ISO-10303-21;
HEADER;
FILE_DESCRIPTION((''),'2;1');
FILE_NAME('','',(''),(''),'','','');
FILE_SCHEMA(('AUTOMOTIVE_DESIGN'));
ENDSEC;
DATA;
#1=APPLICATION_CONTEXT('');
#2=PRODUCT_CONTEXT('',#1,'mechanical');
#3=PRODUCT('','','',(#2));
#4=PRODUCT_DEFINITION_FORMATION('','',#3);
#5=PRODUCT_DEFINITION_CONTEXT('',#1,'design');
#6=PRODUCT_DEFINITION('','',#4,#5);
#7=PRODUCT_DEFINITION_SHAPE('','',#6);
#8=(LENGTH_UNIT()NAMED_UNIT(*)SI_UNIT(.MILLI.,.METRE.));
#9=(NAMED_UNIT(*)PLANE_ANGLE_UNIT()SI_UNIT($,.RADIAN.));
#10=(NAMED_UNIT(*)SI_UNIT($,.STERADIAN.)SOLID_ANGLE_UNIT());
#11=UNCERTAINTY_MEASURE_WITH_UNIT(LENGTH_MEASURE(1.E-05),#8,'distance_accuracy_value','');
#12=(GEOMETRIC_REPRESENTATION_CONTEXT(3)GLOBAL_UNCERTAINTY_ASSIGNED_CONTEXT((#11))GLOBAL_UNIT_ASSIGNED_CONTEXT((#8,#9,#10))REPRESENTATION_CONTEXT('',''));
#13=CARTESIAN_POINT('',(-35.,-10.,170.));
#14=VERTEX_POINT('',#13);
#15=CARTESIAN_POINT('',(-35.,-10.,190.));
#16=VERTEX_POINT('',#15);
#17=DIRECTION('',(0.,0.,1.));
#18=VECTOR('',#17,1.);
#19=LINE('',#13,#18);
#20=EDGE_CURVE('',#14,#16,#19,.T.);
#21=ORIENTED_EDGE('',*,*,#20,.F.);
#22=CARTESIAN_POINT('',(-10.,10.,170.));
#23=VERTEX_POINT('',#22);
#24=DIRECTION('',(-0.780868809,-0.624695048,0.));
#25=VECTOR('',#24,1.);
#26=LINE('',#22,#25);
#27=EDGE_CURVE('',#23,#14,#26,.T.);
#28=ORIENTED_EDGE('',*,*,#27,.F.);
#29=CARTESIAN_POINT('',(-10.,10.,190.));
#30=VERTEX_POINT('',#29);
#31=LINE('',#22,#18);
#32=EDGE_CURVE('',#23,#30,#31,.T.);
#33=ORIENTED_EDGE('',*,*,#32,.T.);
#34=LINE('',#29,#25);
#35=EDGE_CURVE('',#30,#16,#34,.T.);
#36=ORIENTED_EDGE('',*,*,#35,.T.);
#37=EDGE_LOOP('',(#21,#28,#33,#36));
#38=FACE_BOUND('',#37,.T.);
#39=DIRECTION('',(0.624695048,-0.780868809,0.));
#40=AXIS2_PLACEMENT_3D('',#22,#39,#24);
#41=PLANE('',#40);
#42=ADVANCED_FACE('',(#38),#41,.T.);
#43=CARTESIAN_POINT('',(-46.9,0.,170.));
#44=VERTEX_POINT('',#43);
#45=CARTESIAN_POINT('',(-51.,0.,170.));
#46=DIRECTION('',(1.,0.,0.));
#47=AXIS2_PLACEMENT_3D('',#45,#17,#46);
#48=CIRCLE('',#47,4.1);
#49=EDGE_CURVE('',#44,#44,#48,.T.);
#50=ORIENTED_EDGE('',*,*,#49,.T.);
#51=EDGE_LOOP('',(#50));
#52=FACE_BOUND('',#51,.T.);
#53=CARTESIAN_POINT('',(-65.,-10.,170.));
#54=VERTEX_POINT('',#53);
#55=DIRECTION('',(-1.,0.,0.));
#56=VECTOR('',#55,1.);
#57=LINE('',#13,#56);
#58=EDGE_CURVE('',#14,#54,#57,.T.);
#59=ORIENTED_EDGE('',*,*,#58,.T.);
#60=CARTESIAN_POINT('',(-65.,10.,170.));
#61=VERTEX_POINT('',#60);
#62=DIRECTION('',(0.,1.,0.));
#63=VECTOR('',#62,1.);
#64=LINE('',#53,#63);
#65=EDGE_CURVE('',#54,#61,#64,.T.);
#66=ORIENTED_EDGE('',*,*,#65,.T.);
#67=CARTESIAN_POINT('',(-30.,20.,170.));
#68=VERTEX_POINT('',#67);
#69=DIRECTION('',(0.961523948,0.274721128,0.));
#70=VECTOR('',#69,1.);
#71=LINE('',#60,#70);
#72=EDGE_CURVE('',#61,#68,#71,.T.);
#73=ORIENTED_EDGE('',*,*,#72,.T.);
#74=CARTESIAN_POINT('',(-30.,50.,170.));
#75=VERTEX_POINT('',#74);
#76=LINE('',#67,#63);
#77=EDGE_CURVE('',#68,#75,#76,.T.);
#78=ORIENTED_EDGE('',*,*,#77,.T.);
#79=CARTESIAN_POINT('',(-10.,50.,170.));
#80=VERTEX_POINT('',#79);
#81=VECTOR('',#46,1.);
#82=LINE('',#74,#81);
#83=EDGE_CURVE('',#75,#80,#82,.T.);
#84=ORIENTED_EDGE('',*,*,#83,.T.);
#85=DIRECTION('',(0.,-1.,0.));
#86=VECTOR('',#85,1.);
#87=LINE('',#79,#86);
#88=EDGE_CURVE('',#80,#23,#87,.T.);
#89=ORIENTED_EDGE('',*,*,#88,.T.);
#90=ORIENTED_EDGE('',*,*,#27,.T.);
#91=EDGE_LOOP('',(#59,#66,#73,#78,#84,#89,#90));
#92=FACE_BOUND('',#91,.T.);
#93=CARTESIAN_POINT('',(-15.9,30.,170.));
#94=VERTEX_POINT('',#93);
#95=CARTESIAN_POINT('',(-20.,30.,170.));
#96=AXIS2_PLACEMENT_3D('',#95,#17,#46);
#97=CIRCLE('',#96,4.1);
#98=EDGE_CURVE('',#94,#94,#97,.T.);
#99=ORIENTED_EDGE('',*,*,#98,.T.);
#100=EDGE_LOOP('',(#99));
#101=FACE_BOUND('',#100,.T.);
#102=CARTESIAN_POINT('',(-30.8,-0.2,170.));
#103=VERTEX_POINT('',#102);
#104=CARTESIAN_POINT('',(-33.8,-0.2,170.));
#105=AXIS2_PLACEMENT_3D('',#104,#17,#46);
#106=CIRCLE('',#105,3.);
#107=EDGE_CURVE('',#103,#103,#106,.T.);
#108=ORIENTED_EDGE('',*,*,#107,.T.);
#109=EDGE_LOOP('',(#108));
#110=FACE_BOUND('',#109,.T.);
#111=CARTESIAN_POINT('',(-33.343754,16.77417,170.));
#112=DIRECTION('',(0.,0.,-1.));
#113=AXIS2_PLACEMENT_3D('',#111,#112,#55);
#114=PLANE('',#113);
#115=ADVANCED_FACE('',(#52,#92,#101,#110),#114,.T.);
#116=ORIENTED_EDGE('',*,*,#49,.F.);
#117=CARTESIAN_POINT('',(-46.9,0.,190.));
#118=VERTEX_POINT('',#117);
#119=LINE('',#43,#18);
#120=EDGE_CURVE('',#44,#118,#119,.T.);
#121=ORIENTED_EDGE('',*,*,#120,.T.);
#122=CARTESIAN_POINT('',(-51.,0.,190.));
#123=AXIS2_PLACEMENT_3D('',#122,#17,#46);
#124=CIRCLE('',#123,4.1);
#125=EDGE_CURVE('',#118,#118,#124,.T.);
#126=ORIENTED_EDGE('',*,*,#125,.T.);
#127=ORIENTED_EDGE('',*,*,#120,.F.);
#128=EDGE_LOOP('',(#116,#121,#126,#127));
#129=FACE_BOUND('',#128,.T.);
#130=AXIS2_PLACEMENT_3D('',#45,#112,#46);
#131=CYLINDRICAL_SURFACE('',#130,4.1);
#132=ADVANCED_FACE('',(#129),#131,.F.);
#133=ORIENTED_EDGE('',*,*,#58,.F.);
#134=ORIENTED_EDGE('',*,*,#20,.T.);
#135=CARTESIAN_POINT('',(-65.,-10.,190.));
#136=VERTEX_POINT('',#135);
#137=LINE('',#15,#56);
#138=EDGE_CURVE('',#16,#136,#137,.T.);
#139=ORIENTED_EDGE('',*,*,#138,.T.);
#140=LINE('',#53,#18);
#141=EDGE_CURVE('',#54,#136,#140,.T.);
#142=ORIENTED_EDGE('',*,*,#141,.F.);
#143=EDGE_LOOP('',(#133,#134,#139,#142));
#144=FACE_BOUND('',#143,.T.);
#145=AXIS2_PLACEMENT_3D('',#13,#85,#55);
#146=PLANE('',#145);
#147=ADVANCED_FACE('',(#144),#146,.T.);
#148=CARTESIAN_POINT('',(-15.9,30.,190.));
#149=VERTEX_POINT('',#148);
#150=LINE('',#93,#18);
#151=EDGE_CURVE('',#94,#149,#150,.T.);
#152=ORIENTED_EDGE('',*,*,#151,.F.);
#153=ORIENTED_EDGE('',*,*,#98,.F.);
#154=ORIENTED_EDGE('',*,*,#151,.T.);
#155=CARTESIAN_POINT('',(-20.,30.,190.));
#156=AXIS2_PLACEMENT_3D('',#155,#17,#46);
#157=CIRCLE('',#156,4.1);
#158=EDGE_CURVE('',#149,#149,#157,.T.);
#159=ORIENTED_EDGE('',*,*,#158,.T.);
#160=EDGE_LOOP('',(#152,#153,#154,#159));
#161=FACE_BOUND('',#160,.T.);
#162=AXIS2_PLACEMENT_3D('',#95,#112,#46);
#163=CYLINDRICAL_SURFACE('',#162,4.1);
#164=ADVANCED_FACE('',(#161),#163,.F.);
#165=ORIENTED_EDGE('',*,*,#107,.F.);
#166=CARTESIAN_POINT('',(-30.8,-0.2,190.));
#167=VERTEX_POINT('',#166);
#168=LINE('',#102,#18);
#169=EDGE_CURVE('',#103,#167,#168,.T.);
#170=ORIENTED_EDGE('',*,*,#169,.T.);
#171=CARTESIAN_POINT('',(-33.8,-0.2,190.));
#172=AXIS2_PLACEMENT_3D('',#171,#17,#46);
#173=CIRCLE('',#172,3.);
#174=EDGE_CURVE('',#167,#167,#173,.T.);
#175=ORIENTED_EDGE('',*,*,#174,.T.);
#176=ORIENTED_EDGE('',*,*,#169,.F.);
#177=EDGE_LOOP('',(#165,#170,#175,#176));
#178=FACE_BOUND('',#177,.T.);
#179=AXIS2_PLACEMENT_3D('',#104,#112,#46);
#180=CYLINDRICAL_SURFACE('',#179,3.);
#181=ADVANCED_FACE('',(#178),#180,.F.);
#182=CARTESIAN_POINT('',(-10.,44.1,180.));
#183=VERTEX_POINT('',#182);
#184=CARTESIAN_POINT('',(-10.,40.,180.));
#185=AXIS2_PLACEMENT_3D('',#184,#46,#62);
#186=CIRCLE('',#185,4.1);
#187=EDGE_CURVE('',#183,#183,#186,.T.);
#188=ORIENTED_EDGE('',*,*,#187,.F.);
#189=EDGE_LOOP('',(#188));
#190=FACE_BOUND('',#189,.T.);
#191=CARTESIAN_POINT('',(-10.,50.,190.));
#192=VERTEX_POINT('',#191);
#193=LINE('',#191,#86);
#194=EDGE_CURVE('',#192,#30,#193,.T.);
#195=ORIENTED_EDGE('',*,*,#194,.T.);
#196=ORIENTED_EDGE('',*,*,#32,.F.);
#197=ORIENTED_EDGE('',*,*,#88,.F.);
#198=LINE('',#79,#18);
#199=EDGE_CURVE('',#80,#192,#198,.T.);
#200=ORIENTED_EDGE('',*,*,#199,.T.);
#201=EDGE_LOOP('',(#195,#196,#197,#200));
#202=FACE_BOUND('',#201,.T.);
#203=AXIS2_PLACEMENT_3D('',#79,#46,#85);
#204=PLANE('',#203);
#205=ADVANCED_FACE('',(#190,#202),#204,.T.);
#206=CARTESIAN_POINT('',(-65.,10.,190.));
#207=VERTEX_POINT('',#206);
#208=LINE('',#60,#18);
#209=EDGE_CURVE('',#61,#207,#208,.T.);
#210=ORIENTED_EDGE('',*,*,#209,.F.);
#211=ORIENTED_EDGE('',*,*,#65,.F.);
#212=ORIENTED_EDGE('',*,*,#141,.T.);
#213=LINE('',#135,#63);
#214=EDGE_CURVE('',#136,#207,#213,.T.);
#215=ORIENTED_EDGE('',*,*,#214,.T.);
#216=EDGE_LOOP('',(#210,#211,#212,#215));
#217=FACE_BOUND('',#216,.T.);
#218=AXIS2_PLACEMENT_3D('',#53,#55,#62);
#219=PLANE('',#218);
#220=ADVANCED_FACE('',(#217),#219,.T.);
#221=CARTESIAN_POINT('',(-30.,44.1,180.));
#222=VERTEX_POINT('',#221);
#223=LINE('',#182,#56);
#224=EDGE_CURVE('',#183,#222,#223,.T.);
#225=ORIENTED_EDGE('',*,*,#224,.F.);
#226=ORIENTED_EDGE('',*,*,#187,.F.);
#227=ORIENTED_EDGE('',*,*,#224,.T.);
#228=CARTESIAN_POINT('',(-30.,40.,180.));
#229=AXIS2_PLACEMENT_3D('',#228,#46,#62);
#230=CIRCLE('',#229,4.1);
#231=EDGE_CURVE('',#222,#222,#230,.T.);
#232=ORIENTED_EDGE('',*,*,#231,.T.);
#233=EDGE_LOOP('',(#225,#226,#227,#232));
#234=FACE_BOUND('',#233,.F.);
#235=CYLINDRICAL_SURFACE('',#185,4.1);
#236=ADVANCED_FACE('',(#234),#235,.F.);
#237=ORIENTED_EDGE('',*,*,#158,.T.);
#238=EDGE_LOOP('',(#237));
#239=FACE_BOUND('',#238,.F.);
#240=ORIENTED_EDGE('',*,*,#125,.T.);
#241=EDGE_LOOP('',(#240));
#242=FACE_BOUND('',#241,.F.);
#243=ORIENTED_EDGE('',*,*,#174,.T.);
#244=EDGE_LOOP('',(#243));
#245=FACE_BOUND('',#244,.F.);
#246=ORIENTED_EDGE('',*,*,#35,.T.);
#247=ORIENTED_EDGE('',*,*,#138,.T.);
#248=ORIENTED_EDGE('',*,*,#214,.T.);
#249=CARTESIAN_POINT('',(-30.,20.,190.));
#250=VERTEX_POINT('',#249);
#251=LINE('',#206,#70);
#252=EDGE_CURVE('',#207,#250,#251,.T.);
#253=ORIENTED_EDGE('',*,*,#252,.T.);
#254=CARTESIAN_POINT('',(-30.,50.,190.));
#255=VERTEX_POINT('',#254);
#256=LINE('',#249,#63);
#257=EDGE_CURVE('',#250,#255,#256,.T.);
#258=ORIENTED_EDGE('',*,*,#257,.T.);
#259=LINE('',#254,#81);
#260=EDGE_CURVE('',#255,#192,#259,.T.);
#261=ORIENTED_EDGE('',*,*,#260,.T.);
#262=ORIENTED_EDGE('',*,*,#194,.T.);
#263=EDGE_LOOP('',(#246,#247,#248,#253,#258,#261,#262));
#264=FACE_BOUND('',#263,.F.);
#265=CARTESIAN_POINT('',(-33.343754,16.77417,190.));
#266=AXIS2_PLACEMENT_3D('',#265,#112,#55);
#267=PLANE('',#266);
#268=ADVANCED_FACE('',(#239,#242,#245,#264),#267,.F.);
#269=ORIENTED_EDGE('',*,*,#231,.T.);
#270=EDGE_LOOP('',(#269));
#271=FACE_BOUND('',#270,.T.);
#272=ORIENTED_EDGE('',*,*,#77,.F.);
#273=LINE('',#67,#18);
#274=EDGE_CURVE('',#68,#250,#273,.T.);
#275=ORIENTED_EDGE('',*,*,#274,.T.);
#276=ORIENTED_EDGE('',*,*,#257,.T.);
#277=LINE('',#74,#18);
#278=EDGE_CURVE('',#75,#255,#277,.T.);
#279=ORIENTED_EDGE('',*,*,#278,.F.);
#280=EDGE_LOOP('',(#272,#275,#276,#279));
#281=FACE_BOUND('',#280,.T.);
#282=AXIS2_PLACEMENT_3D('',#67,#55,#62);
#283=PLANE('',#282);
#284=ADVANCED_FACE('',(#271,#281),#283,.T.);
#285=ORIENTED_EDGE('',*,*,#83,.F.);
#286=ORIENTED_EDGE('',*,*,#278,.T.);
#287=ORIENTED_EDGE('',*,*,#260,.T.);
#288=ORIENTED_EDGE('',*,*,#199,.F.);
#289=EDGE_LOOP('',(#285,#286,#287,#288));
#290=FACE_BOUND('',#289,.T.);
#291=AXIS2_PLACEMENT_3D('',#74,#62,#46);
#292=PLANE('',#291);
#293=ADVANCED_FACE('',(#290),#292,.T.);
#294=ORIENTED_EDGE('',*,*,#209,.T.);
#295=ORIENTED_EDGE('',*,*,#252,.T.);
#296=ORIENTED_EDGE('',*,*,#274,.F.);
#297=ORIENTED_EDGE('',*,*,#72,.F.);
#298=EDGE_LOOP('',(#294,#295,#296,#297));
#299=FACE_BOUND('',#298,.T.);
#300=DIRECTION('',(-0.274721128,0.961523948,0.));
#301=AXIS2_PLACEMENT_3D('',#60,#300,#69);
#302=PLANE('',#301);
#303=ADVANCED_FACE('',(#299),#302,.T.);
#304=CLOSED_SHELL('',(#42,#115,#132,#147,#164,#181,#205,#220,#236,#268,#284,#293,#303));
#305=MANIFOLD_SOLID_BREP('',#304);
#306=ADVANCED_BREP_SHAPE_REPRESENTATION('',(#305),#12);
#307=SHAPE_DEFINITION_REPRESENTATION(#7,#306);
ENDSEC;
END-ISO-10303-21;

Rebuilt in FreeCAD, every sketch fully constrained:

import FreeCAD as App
import Part
import Sketcher
from FreeCAD import Vector
Q = App.Units.Quantity

doc = App.newDocument("Part")
body = doc.addObject("PartDesign::Body", "Body")

# Sketch on XY plane
sketch1 = body.newObject("Sketcher::SketchObject", "Sketch")
sketch1.AttachmentSupport = (doc.getObject("XY_Plane"), [""])
sketch1.MapMode = "FlatFace"
sketch1.AttachmentOffset = App.Placement(Vector(0, 0, 170), App.Rotation())
sketch1.addGeometry(Part.LineSegment(Vector(-10, 50, 0), Vector(-30, 50, 0)), False)
sketch1.addGeometry(Part.LineSegment(Vector(-30, 50, 0), Vector(-30, 20, 0)), False)
sketch1.addGeometry(Part.LineSegment(Vector(-30, 20, 0), Vector(-65, 10, 0)), False)
sketch1.addGeometry(Part.LineSegment(Vector(-65, 10, 0), Vector(-65, -10, 0)), False)
sketch1.addGeometry(Part.LineSegment(Vector(-65, -10, 0), Vector(-35, -10, 0)), False)
sketch1.addGeometry(Part.LineSegment(Vector(-35, -10, 0), Vector(-10, 10, 0)), False)
sketch1.addGeometry(Part.LineSegment(Vector(-10, 10, 0), Vector(-10, 50, 0)), False)
sketch1.addGeometry(Part.Circle(Vector(-33.8, -0.2, 0), Vector(0, 0, 1), 3), False)
sketch1.addGeometry(Part.Circle(Vector(-51, 0, 0), Vector(0, 0, 1), 4.1), False)
sketch1.addGeometry(Part.Circle(Vector(-20, 30, 0), Vector(0, 0, 1), 4.1), False)
sketch1.addConstraint(Sketcher.Constraint("Coincident", 0, 2, 1, 1))
sketch1.addConstraint(Sketcher.Constraint("Coincident", 1, 2, 2, 1))
sketch1.addConstraint(Sketcher.Constraint("Coincident", 2, 2, 3, 1))
sketch1.addConstraint(Sketcher.Constraint("Coincident", 3, 2, 4, 1))
sketch1.addConstraint(Sketcher.Constraint("Coincident", 4, 2, 5, 1))
sketch1.addConstraint(Sketcher.Constraint("Coincident", 5, 2, 6, 1))
sketch1.addConstraint(Sketcher.Constraint("Coincident", 6, 2, 0, 1))
sketch1.addConstraint(Sketcher.Constraint("Horizontal", 0))
sketch1.addConstraint(Sketcher.Constraint("Vertical", 1))
sketch1.addConstraint(Sketcher.Constraint("Vertical", 3))
sketch1.addConstraint(Sketcher.Constraint("Horizontal", 4))
sketch1.addConstraint(Sketcher.Constraint("Vertical", 6))
sketch1.addConstraint(Sketcher.Constraint("Equal", 8, 9))
sketch1.addConstraint(Sketcher.Constraint("PointOnObject", 8, 3, -1))
sketch1.addConstraint(Sketcher.Constraint("Horizontal", 2, 2, 5, 2))
sketch1.addConstraint(Sketcher.Constraint("Equal", 4, 1))
sketch1.addConstraint(Sketcher.Constraint("Equal", 0, 3))
sketch1.addConstraint(Sketcher.Constraint("Diameter", 7, Q("6 mm")))
sketch1.addConstraint(Sketcher.Constraint("Diameter", 8, Q("8.2 mm")))
sketch1.addConstraint(Sketcher.Constraint("DistanceX", 0, 2, 0, 1, Q("20 mm")))
sketch1.addConstraint(Sketcher.Constraint("DistanceX", 4, 1, 4, 2, Q("30 mm")))
sketch1.addConstraint(Sketcher.Constraint("DistanceY", 6, 1, 6, 2, Q("40 mm")))
sketch1.addConstraint(Sketcher.Constraint("DistanceX", 8, 3, -1, 1, Q("51 mm")))
sketch1.addConstraint(Sketcher.Constraint("DistanceX", 9, 3, -1, 1, Q("20 mm")))
sketch1.addConstraint(Sketcher.Constraint("DistanceY", -1, 1, 9, 3, Q("30 mm")))
sketch1.addConstraint(Sketcher.Constraint("DistanceX", 0, 2, -1, 1, Q("30 mm")))
sketch1.addConstraint(Sketcher.Constraint("DistanceY", -1, 1, 0, 2, Q("50 mm")))
sketch1.addConstraint(Sketcher.Constraint("DistanceX", 2, 2, -1, 1, Q("65 mm")))
sketch1.addConstraint(Sketcher.Constraint("DistanceX", 7, 3, -1, 1, Q("33.8 mm")))
sketch1.addConstraint(Sketcher.Constraint("DistanceY", 7, 3, -1, 1, Q("0.2 mm")))
pad1 = body.newObject("PartDesign::Pad", "Pad")
pad1.Profile = sketch1
pad1.Length = 20

# Sketch on YZ plane
sketch2 = body.newObject("Sketcher::SketchObject", "Sketch001")
sketch2.AttachmentSupport = (doc.getObject("YZ_Plane"), [""])
sketch2.MapMode = "FlatFace"
sketch2.AttachmentOffset = App.Placement(Vector(0, 0, -10), App.Rotation())
sketch2.addGeometry(Part.Circle(Vector(40, 180, 0), Vector(0, 0, 1), 4.1), False)
sketch2.addConstraint(Sketcher.Constraint("Diameter", 0, Q("8.2 mm")))
sketch2.addConstraint(Sketcher.Constraint("DistanceX", -1, 1, 0, 3, Q("40 mm")))
sketch2.addConstraint(Sketcher.Constraint("DistanceY", -1, 1, 0, 3, Q("180 mm")))
pocket1 = body.newObject("PartDesign::Pocket", "Pocket")
pocket1.Profile = sketch2
pocket1.Type = "ThroughAll"

doc.recompute()
